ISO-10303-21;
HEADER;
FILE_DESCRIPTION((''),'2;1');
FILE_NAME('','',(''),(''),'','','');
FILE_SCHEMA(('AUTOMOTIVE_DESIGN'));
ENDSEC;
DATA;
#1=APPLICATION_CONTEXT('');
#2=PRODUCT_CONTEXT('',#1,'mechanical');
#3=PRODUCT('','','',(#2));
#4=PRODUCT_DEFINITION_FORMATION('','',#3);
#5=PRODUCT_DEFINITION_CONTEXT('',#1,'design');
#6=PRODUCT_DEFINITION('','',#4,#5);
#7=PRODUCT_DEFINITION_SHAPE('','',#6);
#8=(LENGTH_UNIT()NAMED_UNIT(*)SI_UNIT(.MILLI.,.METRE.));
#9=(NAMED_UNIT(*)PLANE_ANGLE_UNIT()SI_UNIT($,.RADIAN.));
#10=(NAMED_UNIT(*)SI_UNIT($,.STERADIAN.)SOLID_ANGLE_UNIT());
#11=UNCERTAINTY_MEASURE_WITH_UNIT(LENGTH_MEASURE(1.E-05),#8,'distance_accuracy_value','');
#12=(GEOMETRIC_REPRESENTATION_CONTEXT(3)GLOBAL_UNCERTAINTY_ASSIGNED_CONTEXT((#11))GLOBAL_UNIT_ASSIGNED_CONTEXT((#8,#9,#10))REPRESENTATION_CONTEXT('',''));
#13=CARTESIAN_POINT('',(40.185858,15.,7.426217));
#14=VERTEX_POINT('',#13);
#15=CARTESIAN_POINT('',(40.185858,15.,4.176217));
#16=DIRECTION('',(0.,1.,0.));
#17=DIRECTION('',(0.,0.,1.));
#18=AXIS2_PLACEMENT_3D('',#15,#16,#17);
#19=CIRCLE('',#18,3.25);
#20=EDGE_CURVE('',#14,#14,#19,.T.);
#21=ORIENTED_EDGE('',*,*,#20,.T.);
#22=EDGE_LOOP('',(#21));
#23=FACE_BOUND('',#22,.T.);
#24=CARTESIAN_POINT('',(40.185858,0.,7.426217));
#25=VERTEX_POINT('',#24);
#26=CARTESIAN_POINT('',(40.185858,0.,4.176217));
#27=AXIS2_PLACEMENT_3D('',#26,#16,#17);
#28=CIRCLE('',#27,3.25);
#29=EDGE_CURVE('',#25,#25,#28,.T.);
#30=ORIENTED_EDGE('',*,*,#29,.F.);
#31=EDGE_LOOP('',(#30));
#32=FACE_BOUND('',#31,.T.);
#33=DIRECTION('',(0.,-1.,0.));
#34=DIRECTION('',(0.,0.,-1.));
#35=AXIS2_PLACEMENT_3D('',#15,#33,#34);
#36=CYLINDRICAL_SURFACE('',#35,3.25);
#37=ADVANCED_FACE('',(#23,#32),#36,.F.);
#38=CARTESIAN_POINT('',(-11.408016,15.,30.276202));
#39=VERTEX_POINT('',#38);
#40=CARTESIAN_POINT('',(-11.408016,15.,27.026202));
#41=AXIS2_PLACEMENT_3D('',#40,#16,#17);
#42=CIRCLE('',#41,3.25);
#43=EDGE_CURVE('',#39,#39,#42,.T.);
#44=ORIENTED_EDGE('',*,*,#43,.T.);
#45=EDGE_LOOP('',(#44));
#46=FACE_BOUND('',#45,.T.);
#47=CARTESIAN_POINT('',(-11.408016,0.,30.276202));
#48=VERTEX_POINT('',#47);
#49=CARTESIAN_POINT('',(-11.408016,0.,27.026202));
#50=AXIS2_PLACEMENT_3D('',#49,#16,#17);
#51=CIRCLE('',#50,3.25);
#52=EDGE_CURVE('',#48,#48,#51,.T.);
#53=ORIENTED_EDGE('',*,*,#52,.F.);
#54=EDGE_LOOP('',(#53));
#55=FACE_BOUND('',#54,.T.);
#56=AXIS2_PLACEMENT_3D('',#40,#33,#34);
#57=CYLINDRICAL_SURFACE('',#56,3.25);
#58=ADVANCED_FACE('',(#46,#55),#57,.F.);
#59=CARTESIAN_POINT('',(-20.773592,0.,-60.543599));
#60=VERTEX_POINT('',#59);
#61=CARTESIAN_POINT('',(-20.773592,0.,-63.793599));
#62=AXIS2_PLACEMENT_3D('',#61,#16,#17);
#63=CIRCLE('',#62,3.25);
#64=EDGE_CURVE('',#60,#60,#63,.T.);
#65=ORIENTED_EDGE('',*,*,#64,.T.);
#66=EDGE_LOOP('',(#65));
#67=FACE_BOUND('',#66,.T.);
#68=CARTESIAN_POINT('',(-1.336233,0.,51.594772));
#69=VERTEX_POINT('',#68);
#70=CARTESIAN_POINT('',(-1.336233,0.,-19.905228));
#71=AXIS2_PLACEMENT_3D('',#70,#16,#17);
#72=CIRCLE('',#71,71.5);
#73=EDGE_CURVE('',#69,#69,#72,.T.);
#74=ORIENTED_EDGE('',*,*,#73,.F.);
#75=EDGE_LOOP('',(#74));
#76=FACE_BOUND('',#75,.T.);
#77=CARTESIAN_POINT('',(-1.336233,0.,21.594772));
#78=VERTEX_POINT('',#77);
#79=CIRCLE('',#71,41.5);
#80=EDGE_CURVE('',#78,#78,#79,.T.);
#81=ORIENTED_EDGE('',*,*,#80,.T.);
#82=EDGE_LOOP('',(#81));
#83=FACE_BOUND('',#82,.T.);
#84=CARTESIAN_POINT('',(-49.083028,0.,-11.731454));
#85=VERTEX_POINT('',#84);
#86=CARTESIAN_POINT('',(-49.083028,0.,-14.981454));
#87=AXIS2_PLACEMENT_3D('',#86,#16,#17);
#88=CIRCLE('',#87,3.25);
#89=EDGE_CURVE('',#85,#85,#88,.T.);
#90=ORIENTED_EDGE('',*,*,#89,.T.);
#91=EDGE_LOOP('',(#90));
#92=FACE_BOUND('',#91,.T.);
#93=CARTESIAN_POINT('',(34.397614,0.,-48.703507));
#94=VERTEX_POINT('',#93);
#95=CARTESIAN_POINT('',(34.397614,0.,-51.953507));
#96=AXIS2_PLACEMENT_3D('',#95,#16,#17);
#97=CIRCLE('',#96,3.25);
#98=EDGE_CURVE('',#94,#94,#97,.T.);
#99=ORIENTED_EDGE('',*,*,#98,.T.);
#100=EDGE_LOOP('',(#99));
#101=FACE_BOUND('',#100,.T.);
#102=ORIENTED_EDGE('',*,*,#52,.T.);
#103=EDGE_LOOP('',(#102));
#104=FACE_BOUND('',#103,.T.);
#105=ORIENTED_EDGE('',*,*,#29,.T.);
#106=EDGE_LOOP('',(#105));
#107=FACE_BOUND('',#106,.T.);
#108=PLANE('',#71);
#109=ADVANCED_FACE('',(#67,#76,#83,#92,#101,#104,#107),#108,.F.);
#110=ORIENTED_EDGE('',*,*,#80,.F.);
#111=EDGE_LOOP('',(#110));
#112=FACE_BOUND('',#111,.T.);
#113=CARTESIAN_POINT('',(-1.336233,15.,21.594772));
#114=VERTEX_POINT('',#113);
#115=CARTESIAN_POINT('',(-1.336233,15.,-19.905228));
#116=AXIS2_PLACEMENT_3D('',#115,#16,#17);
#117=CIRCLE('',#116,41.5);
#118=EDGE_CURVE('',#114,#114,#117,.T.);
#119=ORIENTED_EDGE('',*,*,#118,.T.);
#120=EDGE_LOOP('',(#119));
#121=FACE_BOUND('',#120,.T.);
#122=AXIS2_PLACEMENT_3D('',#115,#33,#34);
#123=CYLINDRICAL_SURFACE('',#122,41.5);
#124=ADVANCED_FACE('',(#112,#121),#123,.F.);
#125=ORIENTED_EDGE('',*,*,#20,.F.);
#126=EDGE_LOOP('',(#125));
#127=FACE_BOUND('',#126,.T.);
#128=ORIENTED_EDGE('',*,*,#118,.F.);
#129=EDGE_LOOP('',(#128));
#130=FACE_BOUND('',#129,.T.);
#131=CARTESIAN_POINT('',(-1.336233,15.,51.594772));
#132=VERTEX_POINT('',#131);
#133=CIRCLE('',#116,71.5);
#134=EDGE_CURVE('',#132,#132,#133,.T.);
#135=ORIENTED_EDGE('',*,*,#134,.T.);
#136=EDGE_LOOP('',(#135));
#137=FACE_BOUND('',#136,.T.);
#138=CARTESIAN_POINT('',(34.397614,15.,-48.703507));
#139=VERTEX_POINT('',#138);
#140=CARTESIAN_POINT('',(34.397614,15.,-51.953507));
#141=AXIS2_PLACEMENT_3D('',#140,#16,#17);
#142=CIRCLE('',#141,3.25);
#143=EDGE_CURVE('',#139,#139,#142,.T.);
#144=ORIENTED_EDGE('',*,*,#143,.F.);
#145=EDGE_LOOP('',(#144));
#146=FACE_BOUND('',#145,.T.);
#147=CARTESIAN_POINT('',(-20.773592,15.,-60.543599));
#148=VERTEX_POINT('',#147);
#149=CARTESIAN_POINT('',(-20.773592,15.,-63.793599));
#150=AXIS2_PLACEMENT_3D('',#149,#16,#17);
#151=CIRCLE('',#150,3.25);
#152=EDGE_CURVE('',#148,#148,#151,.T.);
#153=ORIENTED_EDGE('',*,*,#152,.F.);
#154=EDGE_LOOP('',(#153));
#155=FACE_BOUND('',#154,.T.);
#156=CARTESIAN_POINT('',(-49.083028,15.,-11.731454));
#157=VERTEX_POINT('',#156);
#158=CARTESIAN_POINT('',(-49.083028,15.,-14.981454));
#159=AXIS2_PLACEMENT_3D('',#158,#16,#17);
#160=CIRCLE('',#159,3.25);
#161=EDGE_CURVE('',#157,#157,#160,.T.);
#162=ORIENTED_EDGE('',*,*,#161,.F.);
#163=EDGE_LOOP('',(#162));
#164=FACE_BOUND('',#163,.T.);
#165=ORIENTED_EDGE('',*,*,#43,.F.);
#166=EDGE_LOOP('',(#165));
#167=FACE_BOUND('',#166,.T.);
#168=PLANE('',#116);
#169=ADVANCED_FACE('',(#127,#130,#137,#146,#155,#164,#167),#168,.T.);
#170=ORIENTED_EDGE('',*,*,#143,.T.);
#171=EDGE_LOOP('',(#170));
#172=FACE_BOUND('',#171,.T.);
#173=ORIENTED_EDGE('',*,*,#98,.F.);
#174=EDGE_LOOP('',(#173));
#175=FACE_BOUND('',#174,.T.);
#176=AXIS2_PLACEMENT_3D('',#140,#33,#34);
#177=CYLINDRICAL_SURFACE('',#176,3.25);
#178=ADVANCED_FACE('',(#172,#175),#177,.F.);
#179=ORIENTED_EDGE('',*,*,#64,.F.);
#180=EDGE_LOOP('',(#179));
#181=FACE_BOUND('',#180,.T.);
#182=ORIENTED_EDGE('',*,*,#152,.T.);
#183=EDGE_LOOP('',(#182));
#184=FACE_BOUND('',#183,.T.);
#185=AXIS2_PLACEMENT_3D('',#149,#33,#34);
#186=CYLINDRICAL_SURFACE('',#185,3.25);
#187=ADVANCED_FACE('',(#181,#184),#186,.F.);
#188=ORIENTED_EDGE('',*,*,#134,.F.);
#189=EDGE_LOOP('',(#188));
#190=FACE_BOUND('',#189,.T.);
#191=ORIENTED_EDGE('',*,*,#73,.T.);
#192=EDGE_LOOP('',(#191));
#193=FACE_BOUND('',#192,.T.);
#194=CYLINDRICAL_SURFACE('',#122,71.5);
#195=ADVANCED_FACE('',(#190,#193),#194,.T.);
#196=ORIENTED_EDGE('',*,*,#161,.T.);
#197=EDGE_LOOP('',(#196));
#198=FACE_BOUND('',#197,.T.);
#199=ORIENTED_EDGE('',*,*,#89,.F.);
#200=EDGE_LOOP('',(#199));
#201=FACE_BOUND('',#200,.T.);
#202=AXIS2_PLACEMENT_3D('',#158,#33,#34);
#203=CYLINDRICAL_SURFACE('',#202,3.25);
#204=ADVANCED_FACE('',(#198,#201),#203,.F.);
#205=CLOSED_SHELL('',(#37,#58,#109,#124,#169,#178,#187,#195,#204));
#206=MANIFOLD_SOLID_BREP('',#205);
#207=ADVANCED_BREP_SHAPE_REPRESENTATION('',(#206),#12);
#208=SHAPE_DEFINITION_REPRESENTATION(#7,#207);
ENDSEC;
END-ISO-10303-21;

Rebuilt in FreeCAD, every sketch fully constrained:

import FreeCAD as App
import Part
import Sketcher
from FreeCAD import Vector
Q = App.Units.Quantity

doc = App.newDocument("Part")
body = doc.addObject("PartDesign::Body", "Body")

sketch1 = body.newObject("Sketcher::SketchObject", "Sketch")
sketch1.AttachmentSupport = (doc.getObject("XZ_Plane"), [""])
sketch1.MapMode = "FlatFace"
sketch1.addGeometry([
    Part.Circle(Vector(-1.3, -19.9, 0), Vector(0, 0, 1), 71.5),
    Part.Circle(Vector(-20.8, -63.8, 0), Vector(0, 0, 1), 3.2),
    Part.Circle(Vector(-49.1, -15, 0), Vector(0, 0, 1), 3.2),
    Part.Circle(Vector(-11.4, 27, 0), Vector(0, 0, 1), 3.2),
    Part.Circle(Vector(-1.3, -19.9, 0), Vector(0, 0, 1), 41.5),
    Part.Circle(Vector(34.4, -52, 0), Vector(0, 0, 1), 3.2),
    Part.Circle(Vector(40.2, 4.2, 0), Vector(0, 0, 1), 3.2),
], False)
sketch1.addConstraint([
    Sketcher.Constraint("Coincident", 4, 3, 0, 3),
    Sketcher.Constraint("Equal", 1, 2),
    Sketcher.Constraint("Equal", 2, 3),
    Sketcher.Constraint("Equal", 3, 5),
    Sketcher.Constraint("Equal", 5, 6),
    Sketcher.Constraint("Diameter", 0, Q("143 mm")),
    Sketcher.Constraint("Diameter", 4, Q("83 mm")),
    Sketcher.Constraint("Diameter", 1, Q("6.5 mm")),
    Sketcher.Constraint("DistanceY", 1, 3, -1, 1, Q("63.793599 mm")),
    Sketcher.Constraint("DistanceY", 1, 3, 3, 3, Q("90.819801 mm")),
    Sketcher.Constraint("DistanceY", 0, 3, -1, 1, Q("19.905228 mm")),
    Sketcher.Constraint("DistanceX", 1, 3, -1, 1, Q("20.773592 mm")),
    Sketcher.Constraint("DistanceX", 1, 3, 0, 3, Q("19.437359 mm")),
    Sketcher.Constraint("DistanceX", 2, 3, 3, 3, Q("37.675012 mm")),
    Sketcher.Constraint("DistanceY", 5, 3, 0, 3, Q("32.048279 mm")),
    Sketcher.Constraint("DistanceX", 2, 3, 5, 3, Q("83.480642 mm")),
    Sketcher.Constraint("DistanceX", 0, 3, 6, 3, Q("41.522091 mm")),
    Sketcher.Constraint("DistanceX", 2, 3, -1, 1, Q("49.083028 mm")),
    Sketcher.Constraint("DistanceY", 2, 3, -1, 1, Q("14.981454 mm")),
    Sketcher.Constraint("DistanceY", -1, 1, 6, 3, Q("4.176217 mm")),
])
pad1 = body.newObject("PartDesign::Pad", "Pad")
pad1.Profile = sketch1
pad1.Length = 15
pad1.Reversed = True

doc.recompute()
